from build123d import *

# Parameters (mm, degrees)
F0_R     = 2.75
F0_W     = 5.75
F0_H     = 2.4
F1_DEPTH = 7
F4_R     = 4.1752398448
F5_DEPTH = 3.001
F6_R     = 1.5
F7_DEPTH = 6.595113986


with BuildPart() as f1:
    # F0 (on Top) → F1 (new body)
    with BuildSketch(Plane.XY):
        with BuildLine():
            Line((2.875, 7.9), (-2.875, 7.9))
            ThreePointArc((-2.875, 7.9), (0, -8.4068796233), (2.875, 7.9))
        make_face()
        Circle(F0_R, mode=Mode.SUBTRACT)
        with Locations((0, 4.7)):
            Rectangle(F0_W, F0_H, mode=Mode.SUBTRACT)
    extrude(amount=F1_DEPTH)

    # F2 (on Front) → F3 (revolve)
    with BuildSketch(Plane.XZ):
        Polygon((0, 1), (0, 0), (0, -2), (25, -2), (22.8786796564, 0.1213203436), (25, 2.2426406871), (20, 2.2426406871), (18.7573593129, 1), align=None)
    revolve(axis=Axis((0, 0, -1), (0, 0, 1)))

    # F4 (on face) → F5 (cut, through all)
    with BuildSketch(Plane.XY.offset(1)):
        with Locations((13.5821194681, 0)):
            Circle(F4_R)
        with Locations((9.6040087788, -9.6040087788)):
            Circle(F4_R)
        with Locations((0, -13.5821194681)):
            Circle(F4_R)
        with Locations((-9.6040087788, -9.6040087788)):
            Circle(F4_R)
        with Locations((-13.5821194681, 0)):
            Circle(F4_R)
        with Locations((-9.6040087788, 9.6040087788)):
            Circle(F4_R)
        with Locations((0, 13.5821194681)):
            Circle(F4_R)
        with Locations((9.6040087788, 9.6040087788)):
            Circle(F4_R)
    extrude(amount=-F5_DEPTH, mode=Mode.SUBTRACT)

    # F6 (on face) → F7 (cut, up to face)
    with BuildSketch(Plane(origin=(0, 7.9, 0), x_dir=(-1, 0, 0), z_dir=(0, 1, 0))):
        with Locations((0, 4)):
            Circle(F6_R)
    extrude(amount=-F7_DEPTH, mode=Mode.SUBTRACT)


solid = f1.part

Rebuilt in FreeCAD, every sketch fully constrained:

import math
import FreeCAD as App
import Part
import Sketcher

V = App.Vector

doc = App.newDocument("Part")
body = doc.addObject("PartDesign::Body", "Body")

sketch1 = doc.addObject("Sketcher::SketchObject", "Sketch")
body.addObject(sketch1)
sketch1.AttachmentSupport = (doc.XY_Plane, [""])
sketch1.MapMode = "FlatFace"
sketch1.addGeometry([
    Part.LineSegment(V(2.9, 7.9, 0), V(-2.9, 7.9, 0)),
    Part.ArcOfCircle(Part.Circle(V(0, 0, 0), V(0, 0, 1), 8.4), math.radians(110), math.radians(430)),
    Part.Circle(V(0, 0, 0), V(0, 0, 1), 2.8),
    Part.LineSegment(V(2.9, 3.5, 0), V(-2.9, 3.5, 0)),
    Part.LineSegment(V(-2.9, 3.5, 0), V(-2.9, 5.9, 0)),
    Part.LineSegment(V(-2.9, 5.9, 0), V(2.9, 5.9, 0)),
    Part.LineSegment(V(2.9, 5.9, 0), V(2.9, 3.5, 0)),
], False)
sketch1.addConstraint([
    Sketcher.Constraint("Coincident", 0, 1, 1, 2),
    Sketcher.Constraint("Coincident", 1, 1, 0, 2),
    Sketcher.Constraint("Coincident", 3, 2, 4, 1),
    Sketcher.Constraint("Coincident", 4, 2, 5, 1),
    Sketcher.Constraint("Coincident", 5, 2, 6, 1),
    Sketcher.Constraint("Coincident", 6, 2, 3, 1),
    Sketcher.Constraint("Horizontal", 0),
    Sketcher.Constraint("Horizontal", 3),
    Sketcher.Constraint("Vertical", 4),
    Sketcher.Constraint("Horizontal", 5),
    Sketcher.Constraint("Vertical", 6),
    Sketcher.Constraint("Coincident", 1, 3, -1, 1),
    Sketcher.Constraint("Coincident", 2, 3, -1, 1),
    Sketcher.Constraint("Vertical", 1, 1, 3, 2),
    Sketcher.Constraint("Vertical", 0, 1, 5, 2),
    Sketcher.Constraint("Diameter", 2, 5.5),
    Sketcher.Constraint("DistanceY", 4, 1, 4, 2, 2.4),
    Sketcher.Constraint("DistanceY", 4, 2, 1, 1, 2.0),
    Sketcher.Constraint("DistanceX", 0, 2, 0, 1, 5.75),
    Sketcher.Constraint("DistanceY", -1, 1, 0, 1, 7.9),
])
pad1 = doc.addObject("PartDesign::Pad", "Pad")
body.addObject(pad1)
pad1.Profile = sketch1
pad1.Length = 7

sketch2 = doc.addObject("Sketcher::SketchObject", "Sketch001")
body.addObject(sketch2)
sketch2.AttachmentSupport = (doc.XZ_Plane, [""])
sketch2.MapMode = "FlatFace"
sketch2.addGeometry([
    Part.LineSegment(V(0, 1, 0), V(0, -2, 0)),
    Part.LineSegment(V(0, -2, 0), V(25, -2, 0)),
    Part.LineSegment(V(25, -2, 0), V(22.9, 0.1, 0)),
    Part.LineSegment(V(22.9, 0.1, 0), V(25, 2.2, 0)),
    Part.LineSegment(V(25, 2.2, 0), V(20, 2.2, 0)),
    Part.LineSegment(V(20, 2.2, 0), V(18.8, 1, 0)),
    Part.LineSegment(V(18.8, 1, 0), V(0, 1, 0)),
], False)
sketch2.addConstraint([
    Sketcher.Constraint("Coincident", 0, 2, 1, 1),
    Sketcher.Constraint("Coincident", 1, 2, 2, 1),
    Sketcher.Constraint("Coincident", 2, 2, 3, 1),
    Sketcher.Constraint("Coincident", 3, 2, 4, 1),
    Sketcher.Constraint("Coincident", 4, 2, 5, 1),
    Sketcher.Constraint("Coincident", 5, 2, 6, 1),
    Sketcher.Constraint("Coincident", 6, 2, 0, 1),
    Sketcher.Constraint("Vertical", 0),
    Sketcher.Constraint("Horizontal", 1),
    Sketcher.Constraint("Horizontal", 4),
    Sketcher.Constraint("Horizontal", 6),
    Sketcher.Constraint("PointOnObject", 0, 2, -2),
    Sketcher.Constraint("Perpendicular", 2, 3),
    Sketcher.Constraint("Parallel", 3, 5),
    Sketcher.Constraint("Vertical", 1, 2, 3, 2),
    Sketcher.Constraint("Equal", 2, 3),
    Sketcher.Constraint("DistanceX", 1, 1, 1, 2, 25.0),
    Sketcher.Constraint("DistanceX", 4, 2, 4, 1, 5.0),
    Sketcher.Constraint("DistanceY", 0, 2, 0, 1, 3.0),
    Sketcher.Constraint("Distance", 2, 3.0),
    Sketcher.Constraint("DistanceY", 0, 2, -1, 1, 2.0),
])
revolution = doc.addObject("PartDesign::Revolution", "Revolution")
body.addObject(revolution)
revolution.Profile = sketch2
revolution.ReferenceAxis = (sketch2, ["V_Axis"])
revolution.Angle = 360

sketch3 = doc.addObject("Sketcher::SketchObject", "Sketch002")
body.addObject(sketch3)
sketch3.AttachmentSupport = (doc.XY_Plane, [""])
sketch3.MapMode = "FlatFace"
sketch3.AttachmentOffset = App.Placement(V(0, 0, 1), App.Rotation())
sketch3.addGeometry([
    Part.Circle(V(13.6, 0, 0), V(0, 0, 1), 4.2),
    Part.Circle(V(9.6, -9.6, 0), V(0, 0, 1), 4.2),
    Part.Circle(V(0, -13.6, 0), V(0, 0, 1), 4.2),
    Part.Circle(V(-9.6, -9.6, 0), V(0, 0, 1), 4.2),
    Part.Circle(V(-13.6, 0, 0), V(0, 0, 1), 4.2),
    Part.Circle(V(-9.6, 9.6, 0), V(0, 0, 1), 4.2),
    Part.Circle(V(0, 13.6, 0), V(0, 0, 1), 4.2),
    Part.Circle(V(9.6, 9.6, 0), V(0, 0, 1), 4.2),
], False)
sketch3.addConstraint([
    Sketcher.Constraint("Equal", 0, 1),
    Sketcher.Constraint("Equal", 1, 2),
    Sketcher.Constraint("Equal", 2, 3),
    Sketcher.Constraint("Equal", 3, 4),
    Sketcher.Constraint("Equal", 4, 5),
    Sketcher.Constraint("Equal", 5, 6),
    Sketcher.Constraint("Equal", 6, 7),
    Sketcher.Constraint("Symmetric", 0, 3, 4, 3, -1, 1),
    Sketcher.Constraint("Symmetric", 1, 3, 5, 3, -1, 1),
    Sketcher.Constraint("Symmetric", 2, 3, 6, 3, -1, 1),
    Sketcher.Constraint("Symmetric", 3, 3, 7, 3, -1, 1),
    Sketcher.Constraint("Symmetric", 1, 3, 3, 3, -2),
    Sketcher.Constraint("PointOnObject", 0, 3, -1),
    Sketcher.Constraint("PointOnObject", 2, 3, -2),
    Sketcher.Constraint("Diameter", 0, 8.35048),
    Sketcher.Constraint("DistanceX", -1, 1, 0, 3, 13.582119),
    Sketcher.Constraint("DistanceX", -1, 1, 1, 3, 9.604009),
    Sketcher.Constraint("DistanceY", 1, 3, -1, 1, 9.604009),
    Sketcher.Constraint("DistanceY", 2, 3, -1, 1, 13.582119),
])
pocket1 = doc.addObject("PartDesign::Pocket", "Pocket")
body.addObject(pocket1)
pocket1.Profile = sketch3
pocket1.Type = "ThroughAll"

sketch4 = doc.addObject("Sketcher::SketchObject", "Sketch003")
body.addObject(sketch4)
sketch4.AttachmentSupport = (doc.XZ_Plane, [""])
sketch4.MapMode = "FlatFace"
sketch4.AttachmentOffset = App.Placement(V(0, 0, -7.9), App.Rotation())
sketch4.addGeometry(Part.Circle(V(0, 4, 0), V(0, 0, 1), 1.5), False)
sketch4.addConstraint([
    Sketcher.Constraint("PointOnObject", 0, 3, -2),
    Sketcher.Constraint("Diameter", 0, 3.0),
    Sketcher.Constraint("DistanceY", -1, 1, 0, 3, 4.0),
])
pocket2 = doc.addObject("PartDesign::Pocket", "Pocket001")
body.addObject(pocket2)
pocket2.Profile = sketch4
pocket2.Length = 6.595114
pocket2.Reversed = True

doc.recompute()
